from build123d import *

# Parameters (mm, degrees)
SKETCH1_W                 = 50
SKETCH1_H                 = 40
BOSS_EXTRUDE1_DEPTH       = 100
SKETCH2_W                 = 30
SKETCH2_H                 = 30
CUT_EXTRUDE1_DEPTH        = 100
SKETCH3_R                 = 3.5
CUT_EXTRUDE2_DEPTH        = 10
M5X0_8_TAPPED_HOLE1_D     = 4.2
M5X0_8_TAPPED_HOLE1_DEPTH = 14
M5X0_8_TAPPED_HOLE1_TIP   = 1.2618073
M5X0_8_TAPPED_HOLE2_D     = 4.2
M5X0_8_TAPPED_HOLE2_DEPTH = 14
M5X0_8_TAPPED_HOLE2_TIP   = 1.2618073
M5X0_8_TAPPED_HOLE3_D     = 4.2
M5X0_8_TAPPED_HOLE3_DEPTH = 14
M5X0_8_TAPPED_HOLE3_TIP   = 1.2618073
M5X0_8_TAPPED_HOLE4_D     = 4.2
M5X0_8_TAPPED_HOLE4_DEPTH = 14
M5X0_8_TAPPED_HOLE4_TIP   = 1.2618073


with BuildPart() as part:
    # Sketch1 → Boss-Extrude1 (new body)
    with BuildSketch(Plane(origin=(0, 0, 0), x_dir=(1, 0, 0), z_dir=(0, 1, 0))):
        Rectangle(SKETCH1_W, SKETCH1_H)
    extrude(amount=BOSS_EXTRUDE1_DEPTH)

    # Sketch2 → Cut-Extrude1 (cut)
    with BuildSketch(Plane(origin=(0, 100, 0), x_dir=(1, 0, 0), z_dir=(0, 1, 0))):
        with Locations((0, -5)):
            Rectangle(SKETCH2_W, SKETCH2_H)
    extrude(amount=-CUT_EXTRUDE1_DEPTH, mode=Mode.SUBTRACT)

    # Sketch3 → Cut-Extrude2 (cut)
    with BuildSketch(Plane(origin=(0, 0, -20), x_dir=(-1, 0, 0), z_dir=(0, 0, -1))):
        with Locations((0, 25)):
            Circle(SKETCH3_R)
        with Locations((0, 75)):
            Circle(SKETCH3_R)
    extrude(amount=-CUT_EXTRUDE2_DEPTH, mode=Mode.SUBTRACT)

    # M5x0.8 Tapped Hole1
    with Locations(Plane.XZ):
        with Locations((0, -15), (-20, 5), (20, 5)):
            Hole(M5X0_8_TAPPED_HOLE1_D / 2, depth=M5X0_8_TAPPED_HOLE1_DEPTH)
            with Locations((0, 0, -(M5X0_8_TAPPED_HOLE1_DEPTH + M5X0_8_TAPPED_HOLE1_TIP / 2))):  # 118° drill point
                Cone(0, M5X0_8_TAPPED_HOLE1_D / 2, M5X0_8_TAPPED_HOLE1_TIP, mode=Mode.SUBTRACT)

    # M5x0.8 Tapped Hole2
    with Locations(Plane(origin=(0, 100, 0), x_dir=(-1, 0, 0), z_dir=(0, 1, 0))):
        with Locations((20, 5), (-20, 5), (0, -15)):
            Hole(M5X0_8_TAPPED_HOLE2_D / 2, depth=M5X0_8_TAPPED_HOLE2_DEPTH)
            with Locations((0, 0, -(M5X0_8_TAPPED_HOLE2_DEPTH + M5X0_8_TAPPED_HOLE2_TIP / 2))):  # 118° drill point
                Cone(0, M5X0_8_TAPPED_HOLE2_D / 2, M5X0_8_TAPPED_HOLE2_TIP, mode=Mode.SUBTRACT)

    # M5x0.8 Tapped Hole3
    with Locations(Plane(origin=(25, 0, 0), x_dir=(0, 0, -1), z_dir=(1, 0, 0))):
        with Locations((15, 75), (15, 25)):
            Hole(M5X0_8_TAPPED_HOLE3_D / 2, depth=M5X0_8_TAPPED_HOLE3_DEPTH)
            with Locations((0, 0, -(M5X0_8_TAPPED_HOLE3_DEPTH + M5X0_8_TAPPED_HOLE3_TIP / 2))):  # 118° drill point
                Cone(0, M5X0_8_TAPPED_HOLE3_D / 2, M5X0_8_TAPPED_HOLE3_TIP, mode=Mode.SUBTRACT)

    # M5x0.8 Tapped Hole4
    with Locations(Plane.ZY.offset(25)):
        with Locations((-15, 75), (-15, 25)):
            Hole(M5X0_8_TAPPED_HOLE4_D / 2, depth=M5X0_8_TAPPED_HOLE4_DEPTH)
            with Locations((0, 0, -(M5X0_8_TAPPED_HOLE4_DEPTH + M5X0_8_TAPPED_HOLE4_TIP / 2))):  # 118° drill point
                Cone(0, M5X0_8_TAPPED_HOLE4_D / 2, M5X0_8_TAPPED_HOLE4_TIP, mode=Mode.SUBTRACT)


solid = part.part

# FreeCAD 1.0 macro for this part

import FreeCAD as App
import Part
import Sketcher
from FreeCAD import Vector
Q = App.Units.Quantity

doc = App.newDocument("Part")
body = doc.addObject("PartDesign::Body", "Body")

sketch1 = body.newObject("Sketcher::SketchObject", "Sketch")
sketch1.AttachmentSupport = (doc.getObject("XZ_Plane"), [""])
sketch1.MapMode = "FlatFace"
sketch1.addGeometry([
    Part.LineSegment(Vector(-25, -20, 0), Vector(-25, 20, 0)),
    Part.LineSegment(Vector(-25, 20, 0), Vector(25, 20, 0)),
    Part.LineSegment(Vector(25, 20, 0), Vector(25, -20, 0)),
    Part.LineSegment(Vector(25, -20, 0), Vector(-25, -20, 0)),
], False)
sketch1.addConstraint([
    Sketcher.Constraint("Coincident", 0, 2, 1, 1),
    Sketcher.Constraint("Coincident", 1, 2, 2, 1),
    Sketcher.Constraint("Coincident", 2, 2, 3, 1),
    Sketcher.Constraint("Coincident", 3, 2, 0, 1),
    Sketcher.Constraint("Vertical", 0),
    Sketcher.Constraint("Horizontal", 1),
    Sketcher.Constraint("Vertical", 2),
    Sketcher.Constraint("Horizontal", 3),
    Sketcher.Constraint("Symmetric", 0, 2, 2, 2, -1, 1),
    Sketcher.Constraint("DistanceX", 1, 1, 1, 2, Q("50 mm")),
    Sketcher.Constraint("DistanceY", 0, 1, 0, 2, Q("40 mm")),
])
pad1 = body.newObject("PartDesign::Pad", "Pad")
pad1.Profile = sketch1
pad1.Length = 100
pad1.Reversed = True

sketch2 = body.newObject("Sketcher::SketchObject", "Sketch001")
sketch2.AttachmentSupport = (doc.getObject("XZ_Plane"), [""])
sketch2.MapMode = "FlatFace"
sketch2.AttachmentOffset = App.Placement(Vector(0, 0, -100), App.Rotation())
sketch2.addGeometry([
    Part.LineSegment(Vector(-15, -10, 0), Vector(-15, 20, 0)),
    Part.LineSegment(Vector(-15, 20, 0), Vector(15, 20, 0)),
    Part.LineSegment(Vector(15, 20, 0), Vector(15, -10, 0)),
    Part.LineSegment(Vector(15, -10, 0), Vector(-15, -10, 0)),
], False)
sketch2.addConstraint([
    Sketcher.Constraint("Coincident", 0, 2, 1, 1),
    Sketcher.Constraint("Coincident", 1, 2, 2, 1),
    Sketcher.Constraint("Coincident", 2, 2, 3, 1),
    Sketcher.Constraint("Coincident", 3, 2, 0, 1),
    Sketcher.Constraint("Vertical", 0),
    Sketcher.Constraint("Horizontal", 1),
    Sketcher.Constraint("Vertical", 2),
    Sketcher.Constraint("Horizontal", 3),
    Sketcher.Constraint("Equal", 3, 0),
    Sketcher.Constraint("DistanceX", 1, 1, 1, 2, Q("30 mm")),
    Sketcher.Constraint("DistanceX", 0, 2, -1, 1, Q("15 mm")),
    Sketcher.Constraint("DistanceY", -1, 1, 0, 2, Q("20 mm")),
])
pocket1 = body.newObject("PartDesign::Pocket", "Pocket")
pocket1.Profile = sketch2
pocket1.Length = 100
pocket1.Reversed = True

sketch3 = body.newObject("Sketcher::SketchObject", "Sketch002")
sketch3.AttachmentSupport = (doc.getObject("XY_Plane"), [""])
sketch3.MapMode = "FlatFace"
sketch3.AttachmentOffset = App.Placement(Vector(0, 0, -20), App.Rotation())
sketch3.addGeometry([
    Part.Circle(Vector(0, 25, 0), Vector(0, 0, 1), 3.5),
    Part.Circle(Vector(0, 75, 0), Vector(0, 0, 1), 3.5),
], False)
sketch3.addConstraint([
    Sketcher.Constraint("Equal", 0, 1),
    Sketcher.Constraint("PointOnObject", 0, 3, -2),
    Sketcher.Constraint("PointOnObject", 1, 3, -2),
    Sketcher.Constraint("Diameter", 0, Q("7 mm")),
    Sketcher.Constraint("DistanceY", -1, 1, 0, 3, Q("25 mm")),
    Sketcher.Constraint("DistanceY", -1, 1, 1, 3, Q("75 mm")),
])
pocket2 = body.newObject("PartDesign::Pocket", "Pocket001")
pocket2.Profile = sketch3
pocket2.Length = 10
pocket2.Reversed = True

sketch4 = body.newObject("Sketcher::SketchObject", "Sketch003")
sketch4.AttachmentSupport = (doc.getObject("XZ_Plane"), [""])
sketch4.MapMode = "FlatFace"
sketch4.addGeometry([
    Part.Circle(Vector(0, -15, 0), Vector(0, 0, 1), 2.1),
    Part.Circle(Vector(-20, 5, 0), Vector(0, 0, 1), 2.1),
    Part.Circle(Vector(20, 5, 0), Vector(0, 0, 1), 2.1),
], False)
sketch4.addConstraint([
    Sketcher.Constraint("Equal", 0, 1),
    Sketcher.Constraint("Equal", 1, 2),
    Sketcher.Constraint("Symmetric", 1, 3, 2, 3, -2),
    Sketcher.Constraint("PointOnObject", 0, 3, -2),
    Sketcher.Constraint("Diameter", 0, Q("4.2 mm")),
    Sketcher.Constraint("DistanceY", 0, 3, -1, 1, Q("15 mm")),
    Sketcher.Constraint("DistanceX", 1, 3, -1, 1, Q("20 mm")),
    Sketcher.Constraint("DistanceY", -1, 1, 1, 3, Q("5 mm")),
])
doc.recompute()
hole = body.newObject("PartDesign::Hole", "Hole")
hole.Profile = sketch4
hole.ThreadType = "None"
hole.Diameter = 4.2
hole.DepthType = "Dimension"
hole.Depth = 14
hole.DrillPoint = "Angled"
hole.DrillPointAngle = 118

sketch5 = body.newObject("Sketcher::SketchObject", "Sketch004")
sketch5.AttachmentSupport = (doc.getObject("XZ_Plane"), [""])
sketch5.MapMode = "FlatFace"
sketch5.AttachmentOffset = App.Placement(Vector(0, 0, -100), App.Rotation())
sketch5.addGeometry([
    Part.Circle(Vector(-20, 5, 0), Vector(0, 0, 1), 2.1),
    Part.Circle(Vector(20, 5, 0), Vector(0, 0, 1), 2.1),
    Part.Circle(Vector(0, -15, 0), Vector(0, 0, 1), 2.1),
], False)
sketch5.addConstraint([
    Sketcher.Constraint("Equal", 0, 1),
    Sketcher.Constraint("Equal", 1, 2),
    Sketcher.Constraint("Symmetric", 0, 3, 1, 3, -2),
    Sketcher.Constraint("PointOnObject", 2, 3, -2),
    Sketcher.Constraint("Diameter", 0, Q("4.2 mm")),
    Sketcher.Constraint("DistanceX", 0, 3, -1, 1, Q("20 mm")),
    Sketcher.Constraint("DistanceY", -1, 1, 0, 3, Q("5 mm")),
    Sketcher.Constraint("DistanceY", 2, 3, -1, 1, Q("15 mm")),
])
doc.recompute()
hole2 = body.newObject("PartDesign::Hole", "Hole001")
hole2.Profile = sketch5
hole2.ThreadType = "None"
hole2.Diameter = 4.2
hole2.DepthType = "Dimension"
hole2.Depth = 14
hole2.DrillPoint = "Angled"
hole2.DrillPointAngle = 118
hole2.Reversed = True

sketch6 = body.newObject("Sketcher::SketchObject", "Sketch005")
sketch6.AttachmentSupport = (doc.getObject("YZ_Plane"), [""])
sketch6.MapMode = "FlatFace"
sketch6.AttachmentOffset = App.Placement(Vector(0, 0, 25), App.Rotation())
sketch6.addGeometry([
    Part.Circle(Vector(75, -15, 0), Vector(0, 0, 1), 2.1),
    Part.Circle(Vector(25, -15, 0), Vector(0, 0, 1), 2.1),
], False)
sketch6.addConstraint([
    Sketcher.Constraint("Equal", 0, 1),
    Sketcher.Constraint("Horizontal", 0, 3, 1, 3),
    Sketcher.Constraint("Diameter", 0, Q("4.2 mm")),
    Sketcher.Constraint("DistanceX", -1, 1, 0, 3, Q("75 mm")),
    Sketcher.Constraint("DistanceY", 0, 3, -1, 1, Q("15 mm")),
    Sketcher.Constraint("DistanceX", -1, 1, 1, 3, Q("25 mm")),
])
doc.recompute()
hole3 = body.newObject("PartDesign::Hole", "Hole002")
hole3.Profile = sketch6
hole3.ThreadType = "None"
hole3.Diameter = 4.2
hole3.DepthType = "Dimension"
hole3.Depth = 14
hole3.DrillPoint = "Angled"
hole3.DrillPointAngle = 118

sketch7 = body.newObject("Sketcher::SketchObject", "Sketch006")
sketch7.AttachmentSupport = (doc.getObject("YZ_Plane"), [""])
sketch7.MapMode = "FlatFace"
sketch7.AttachmentOffset = App.Placement(Vector(0, 0, -25), App.Rotation())
sketch7.addGeometry([
    Part.Circle(Vector(75, -15, 0), Vector(0, 0, 1), 2.1),
    Part.Circle(Vector(25, -15, 0), Vector(0, 0, 1), 2.1),
], False)
sketch7.addConstraint([
    Sketcher.Constraint("Equal", 0, 1),
    Sketcher.Constraint("Horizontal", 0, 3, 1, 3),
    Sketcher.Constraint("Diameter", 0, Q("4.2 mm")),
    Sketcher.Constraint("DistanceX", -1, 1, 0, 3, Q("75 mm")),
    Sketcher.Constraint("DistanceY", 0, 3, -1, 1, Q("15 mm")),
    Sketcher.Constraint("DistanceX", -1, 1, 1, 3, Q("25 mm")),
])
doc.recompute()
hole4 = body.newObject("PartDesign::Hole", "Hole003")
hole4.Profile = sketch7
hole4.ThreadType = "None"
hole4.Diameter = 4.2
hole4.DepthType = "Dimension"
hole4.Depth = 14
hole4.DrillPoint = "Angled"
hole4.DrillPointAngle = 118
hole4.Reversed = True

doc.recompute()
